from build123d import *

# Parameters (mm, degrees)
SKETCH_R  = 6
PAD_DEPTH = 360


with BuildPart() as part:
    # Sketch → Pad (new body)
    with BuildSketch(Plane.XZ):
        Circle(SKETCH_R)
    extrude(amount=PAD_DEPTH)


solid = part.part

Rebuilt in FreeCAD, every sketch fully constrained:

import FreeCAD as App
import Part
import Sketcher
Q = App.Units.Quantity

doc = App.newDocument("Part")
body = doc.addObject("PartDesign::Body", "Body")

# Sketch on XZ plane
sketch1 = body.newObject("Sketcher::SketchObject", "Sketch")
sketch1.AttachmentSupport = (doc.getObject("XZ_Plane"), [""])
sketch1.MapMode = "FlatFace"
sketch1.addGeometry(Part.Circle(App.Vector(0, 0, 0), App.Vector(0, 0, 1), 6), False)
sketch1.addConstraint([
    Sketcher.Constraint("Coincident", 0, 3, -1, 1),
    Sketcher.Constraint("Diameter", 0, Q("12 mm")),
])
pad1 = body.newObject("PartDesign::Pad", "Pad")
pad1.Profile = sketch1
pad1.Length = 360

doc.recompute()
